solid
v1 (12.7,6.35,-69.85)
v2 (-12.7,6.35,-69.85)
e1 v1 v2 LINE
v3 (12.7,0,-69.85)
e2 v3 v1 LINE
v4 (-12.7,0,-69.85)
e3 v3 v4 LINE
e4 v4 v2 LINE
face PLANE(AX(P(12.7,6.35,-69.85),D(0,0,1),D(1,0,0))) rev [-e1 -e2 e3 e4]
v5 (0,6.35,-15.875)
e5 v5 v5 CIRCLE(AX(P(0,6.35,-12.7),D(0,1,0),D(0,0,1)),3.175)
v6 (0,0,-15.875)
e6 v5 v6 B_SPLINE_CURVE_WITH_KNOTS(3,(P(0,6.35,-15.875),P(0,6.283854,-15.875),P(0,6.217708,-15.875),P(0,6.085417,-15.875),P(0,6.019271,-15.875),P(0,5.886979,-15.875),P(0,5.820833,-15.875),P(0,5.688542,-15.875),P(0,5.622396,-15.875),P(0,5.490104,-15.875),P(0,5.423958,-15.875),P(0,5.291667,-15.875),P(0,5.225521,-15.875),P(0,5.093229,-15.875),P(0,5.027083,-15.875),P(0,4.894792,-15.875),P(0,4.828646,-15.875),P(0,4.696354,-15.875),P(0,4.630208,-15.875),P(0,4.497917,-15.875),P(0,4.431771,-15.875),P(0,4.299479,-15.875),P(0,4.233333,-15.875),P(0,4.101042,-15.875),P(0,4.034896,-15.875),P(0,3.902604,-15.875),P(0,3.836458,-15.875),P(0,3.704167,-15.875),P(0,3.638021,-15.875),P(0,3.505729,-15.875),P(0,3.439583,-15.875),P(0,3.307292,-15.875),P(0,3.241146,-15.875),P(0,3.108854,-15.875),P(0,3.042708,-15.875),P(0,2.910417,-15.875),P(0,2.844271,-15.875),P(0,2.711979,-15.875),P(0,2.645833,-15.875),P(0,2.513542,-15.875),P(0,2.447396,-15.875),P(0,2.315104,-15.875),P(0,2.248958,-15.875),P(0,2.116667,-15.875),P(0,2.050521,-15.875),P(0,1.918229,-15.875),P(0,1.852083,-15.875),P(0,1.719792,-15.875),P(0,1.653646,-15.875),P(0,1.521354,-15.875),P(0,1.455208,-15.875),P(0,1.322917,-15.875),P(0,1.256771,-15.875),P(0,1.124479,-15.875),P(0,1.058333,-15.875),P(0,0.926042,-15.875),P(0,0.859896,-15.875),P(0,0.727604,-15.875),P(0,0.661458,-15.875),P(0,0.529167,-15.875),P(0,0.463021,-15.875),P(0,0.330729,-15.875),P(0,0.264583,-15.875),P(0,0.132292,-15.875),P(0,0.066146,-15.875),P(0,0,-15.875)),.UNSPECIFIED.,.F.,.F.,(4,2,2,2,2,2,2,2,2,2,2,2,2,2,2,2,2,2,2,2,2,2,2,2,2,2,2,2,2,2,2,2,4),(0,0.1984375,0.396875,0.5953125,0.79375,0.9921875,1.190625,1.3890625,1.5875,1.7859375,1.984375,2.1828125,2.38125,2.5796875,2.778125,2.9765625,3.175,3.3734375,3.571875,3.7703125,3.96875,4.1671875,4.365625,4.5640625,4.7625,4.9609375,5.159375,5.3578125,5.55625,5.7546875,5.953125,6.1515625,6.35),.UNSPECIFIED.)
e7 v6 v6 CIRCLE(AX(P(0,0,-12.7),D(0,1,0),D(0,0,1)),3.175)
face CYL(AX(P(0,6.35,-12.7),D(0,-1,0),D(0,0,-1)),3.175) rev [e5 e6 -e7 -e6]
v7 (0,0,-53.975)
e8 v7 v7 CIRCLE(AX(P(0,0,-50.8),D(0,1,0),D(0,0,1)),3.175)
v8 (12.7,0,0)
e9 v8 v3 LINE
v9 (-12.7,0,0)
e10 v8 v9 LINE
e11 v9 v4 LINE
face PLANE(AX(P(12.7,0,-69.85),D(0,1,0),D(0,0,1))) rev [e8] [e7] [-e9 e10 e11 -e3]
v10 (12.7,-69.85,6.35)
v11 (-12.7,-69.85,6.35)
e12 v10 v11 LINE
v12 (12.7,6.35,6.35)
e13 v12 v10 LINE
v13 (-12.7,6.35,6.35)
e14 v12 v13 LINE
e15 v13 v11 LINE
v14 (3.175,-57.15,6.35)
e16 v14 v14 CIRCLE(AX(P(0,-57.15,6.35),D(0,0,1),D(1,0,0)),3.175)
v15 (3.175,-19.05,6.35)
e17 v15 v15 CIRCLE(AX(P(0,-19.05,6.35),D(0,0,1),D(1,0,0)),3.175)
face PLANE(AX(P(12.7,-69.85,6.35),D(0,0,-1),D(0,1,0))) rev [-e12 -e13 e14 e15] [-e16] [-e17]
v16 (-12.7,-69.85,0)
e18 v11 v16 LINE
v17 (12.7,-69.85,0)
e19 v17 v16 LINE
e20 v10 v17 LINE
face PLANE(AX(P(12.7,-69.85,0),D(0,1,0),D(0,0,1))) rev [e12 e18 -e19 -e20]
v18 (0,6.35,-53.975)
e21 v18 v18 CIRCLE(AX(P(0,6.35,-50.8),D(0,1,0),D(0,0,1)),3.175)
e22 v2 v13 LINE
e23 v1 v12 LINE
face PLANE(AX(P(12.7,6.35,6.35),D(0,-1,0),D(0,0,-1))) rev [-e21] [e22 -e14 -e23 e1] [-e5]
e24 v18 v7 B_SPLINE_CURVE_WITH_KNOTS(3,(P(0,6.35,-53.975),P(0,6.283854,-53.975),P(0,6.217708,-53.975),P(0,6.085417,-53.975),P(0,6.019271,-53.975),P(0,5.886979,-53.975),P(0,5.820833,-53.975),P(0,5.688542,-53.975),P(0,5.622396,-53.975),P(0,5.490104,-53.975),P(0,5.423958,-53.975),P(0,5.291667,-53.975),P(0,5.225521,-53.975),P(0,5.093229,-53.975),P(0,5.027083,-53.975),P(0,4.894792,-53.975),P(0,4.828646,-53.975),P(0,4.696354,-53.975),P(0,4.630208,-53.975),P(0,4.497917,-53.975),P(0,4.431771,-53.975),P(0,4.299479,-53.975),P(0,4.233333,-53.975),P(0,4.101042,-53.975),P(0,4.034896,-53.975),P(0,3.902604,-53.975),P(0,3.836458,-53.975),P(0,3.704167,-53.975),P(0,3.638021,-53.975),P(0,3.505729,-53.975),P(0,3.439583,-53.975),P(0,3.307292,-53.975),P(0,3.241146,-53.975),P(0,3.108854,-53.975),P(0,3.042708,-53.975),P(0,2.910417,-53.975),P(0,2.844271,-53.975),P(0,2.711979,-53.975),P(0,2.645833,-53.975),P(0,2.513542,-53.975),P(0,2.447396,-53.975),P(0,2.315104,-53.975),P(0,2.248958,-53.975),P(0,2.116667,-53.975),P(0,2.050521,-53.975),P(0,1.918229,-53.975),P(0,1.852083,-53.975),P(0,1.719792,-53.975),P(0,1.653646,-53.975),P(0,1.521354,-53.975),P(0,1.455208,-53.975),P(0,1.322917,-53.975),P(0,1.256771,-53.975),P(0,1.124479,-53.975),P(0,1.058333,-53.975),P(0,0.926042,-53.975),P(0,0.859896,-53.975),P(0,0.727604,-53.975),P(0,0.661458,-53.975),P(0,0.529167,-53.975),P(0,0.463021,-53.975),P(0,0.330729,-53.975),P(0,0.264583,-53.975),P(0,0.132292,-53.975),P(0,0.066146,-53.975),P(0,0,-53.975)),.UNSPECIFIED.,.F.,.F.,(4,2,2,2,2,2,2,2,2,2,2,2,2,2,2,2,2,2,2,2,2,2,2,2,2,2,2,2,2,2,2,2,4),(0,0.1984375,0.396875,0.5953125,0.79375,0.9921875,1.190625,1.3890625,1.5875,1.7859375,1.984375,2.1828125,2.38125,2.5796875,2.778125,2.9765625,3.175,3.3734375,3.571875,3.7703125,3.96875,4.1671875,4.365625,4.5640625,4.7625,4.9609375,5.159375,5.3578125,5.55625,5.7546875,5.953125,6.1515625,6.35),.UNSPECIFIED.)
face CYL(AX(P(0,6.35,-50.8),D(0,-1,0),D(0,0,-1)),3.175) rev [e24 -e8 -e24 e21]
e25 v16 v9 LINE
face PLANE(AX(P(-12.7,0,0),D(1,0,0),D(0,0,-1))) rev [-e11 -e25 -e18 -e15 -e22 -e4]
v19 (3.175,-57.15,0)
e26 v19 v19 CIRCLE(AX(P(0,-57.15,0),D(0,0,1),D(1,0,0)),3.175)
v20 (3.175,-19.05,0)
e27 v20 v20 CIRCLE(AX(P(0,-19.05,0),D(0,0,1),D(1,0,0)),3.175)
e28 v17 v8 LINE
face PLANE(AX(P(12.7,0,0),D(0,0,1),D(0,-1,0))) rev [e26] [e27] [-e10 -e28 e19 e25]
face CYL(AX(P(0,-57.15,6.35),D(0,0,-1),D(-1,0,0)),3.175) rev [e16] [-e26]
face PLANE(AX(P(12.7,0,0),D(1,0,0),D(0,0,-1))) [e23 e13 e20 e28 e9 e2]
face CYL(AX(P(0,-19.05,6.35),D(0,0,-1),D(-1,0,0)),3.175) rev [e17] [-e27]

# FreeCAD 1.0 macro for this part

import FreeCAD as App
import Part
import Sketcher

V = App.Vector
Q = App.Units.Quantity


def add_polygon(sketch, points):
    """Adds a closed chain of lines whose ends are joined by coincident constraints."""
    first, n = sketch.GeometryCount, len(points)
    for a, b in zip(points, points[1:] + points[:1]):
        sketch.addGeometry(Part.LineSegment(App.Vector(*a, 0), App.Vector(*b, 0)), False)
    for i in range(n):
        sketch.addConstraint(Sketcher.Constraint("Coincident", first + i, 2, first + (i + 1) % n, 1))

doc = App.newDocument("Part")
body = doc.addObject("PartDesign::Body", "Body")

sketch1 = body.newObject("Sketcher::SketchObject", "Sketch")
sketch1.AttachmentSupport = (doc.getObject("YZ_Plane"), [""])
sketch1.MapMode = "FlatFace"
add_polygon(sketch1, [(-70, 0), (0, 0), (0, -70), (6, -70), (6, 6), (-70, 6)])
sketch1.addConstraint([
    Sketcher.Constraint("Horizontal", 0),
    Sketcher.Constraint("Vertical", 1),
    Sketcher.Constraint("Horizontal", 2),
    Sketcher.Constraint("Vertical", 3),
    Sketcher.Constraint("Horizontal", 4),
    Sketcher.Constraint("Vertical", 5),
    Sketcher.Constraint("Coincident", 0, 2, -1, 1),
    Sketcher.Constraint("Equal", 0, 1),
    Sketcher.Constraint("Equal", 4, 3),
    Sketcher.Constraint("DistanceX", 4, 2, 4, 1, Q("3 in")),
    Sketcher.Constraint("DistanceX", 0, 1, 0, 2, Q("2.75 in")),
])
pad1 = body.newObject("PartDesign::Pad", "Pad")
pad1.Profile = sketch1
pad1.Length = Q("1 in")
pad1.Midplane = True

sketch2 = body.newObject("Sketcher::SketchObject", "Sketch001")
sketch2.AttachmentSupport = (doc.getObject("XZ_Plane"), [""])
sketch2.MapMode = "FlatFace"
sketch2.addGeometry([
    Part.Circle(V(0, -50.8, 0), V(0, 0, 1), 3.2),
    Part.Circle(V(0, -12.7, 0), V(0, 0, 1), 3.2),
], False)
sketch2.addConstraint([
    Sketcher.Constraint("Equal", 0, 1),
    Sketcher.Constraint("PointOnObject", 0, 3, -2),
    Sketcher.Constraint("PointOnObject", 1, 3, -2),
    Sketcher.Constraint("Diameter", 0, Q("0.25 in")),
    Sketcher.Constraint("DistanceY", 0, 3, -1, 1, Q("2 in")),
    Sketcher.Constraint("DistanceY", 1, 3, -1, 1, Q("0.5 in")),
])
pocket1 = body.newObject("PartDesign::Pocket", "Pocket")
pocket1.Profile = sketch2
pocket1.Type = "ThroughAll"

sketch3 = body.newObject("Sketcher::SketchObject", "Sketch002")
sketch3.AttachmentSupport = (doc.getObject("XY_Plane"), [""])
sketch3.MapMode = "FlatFace"
sketch3.addGeometry([
    Part.Circle(V(0, -57.1, 0), V(0, 0, 1), 3.2),
    Part.Circle(V(0, -19.1, 0), V(0, 0, 1), 3.2),
], False)
sketch3.addConstraint([
    Sketcher.Constraint("Equal", 0, 1),
    Sketcher.Constraint("PointOnObject", 0, 3, -2),
    Sketcher.Constraint("PointOnObject", 1, 3, -2),
    Sketcher.Constraint("Diameter", 0, Q("0.25 in")),
    Sketcher.Constraint("DistanceY", 0, 3, 1, 3, Q("1.5 in")),
    Sketcher.Constraint("DistanceY", 0, 3, -1, 1, Q("2.25 in")),
])
pocket2 = body.newObject("PartDesign::Pocket", "Pocket001")
pocket2.Profile = sketch3
pocket2.Type = "ThroughAll"
pocket2.Reversed = True

doc.recompute()
